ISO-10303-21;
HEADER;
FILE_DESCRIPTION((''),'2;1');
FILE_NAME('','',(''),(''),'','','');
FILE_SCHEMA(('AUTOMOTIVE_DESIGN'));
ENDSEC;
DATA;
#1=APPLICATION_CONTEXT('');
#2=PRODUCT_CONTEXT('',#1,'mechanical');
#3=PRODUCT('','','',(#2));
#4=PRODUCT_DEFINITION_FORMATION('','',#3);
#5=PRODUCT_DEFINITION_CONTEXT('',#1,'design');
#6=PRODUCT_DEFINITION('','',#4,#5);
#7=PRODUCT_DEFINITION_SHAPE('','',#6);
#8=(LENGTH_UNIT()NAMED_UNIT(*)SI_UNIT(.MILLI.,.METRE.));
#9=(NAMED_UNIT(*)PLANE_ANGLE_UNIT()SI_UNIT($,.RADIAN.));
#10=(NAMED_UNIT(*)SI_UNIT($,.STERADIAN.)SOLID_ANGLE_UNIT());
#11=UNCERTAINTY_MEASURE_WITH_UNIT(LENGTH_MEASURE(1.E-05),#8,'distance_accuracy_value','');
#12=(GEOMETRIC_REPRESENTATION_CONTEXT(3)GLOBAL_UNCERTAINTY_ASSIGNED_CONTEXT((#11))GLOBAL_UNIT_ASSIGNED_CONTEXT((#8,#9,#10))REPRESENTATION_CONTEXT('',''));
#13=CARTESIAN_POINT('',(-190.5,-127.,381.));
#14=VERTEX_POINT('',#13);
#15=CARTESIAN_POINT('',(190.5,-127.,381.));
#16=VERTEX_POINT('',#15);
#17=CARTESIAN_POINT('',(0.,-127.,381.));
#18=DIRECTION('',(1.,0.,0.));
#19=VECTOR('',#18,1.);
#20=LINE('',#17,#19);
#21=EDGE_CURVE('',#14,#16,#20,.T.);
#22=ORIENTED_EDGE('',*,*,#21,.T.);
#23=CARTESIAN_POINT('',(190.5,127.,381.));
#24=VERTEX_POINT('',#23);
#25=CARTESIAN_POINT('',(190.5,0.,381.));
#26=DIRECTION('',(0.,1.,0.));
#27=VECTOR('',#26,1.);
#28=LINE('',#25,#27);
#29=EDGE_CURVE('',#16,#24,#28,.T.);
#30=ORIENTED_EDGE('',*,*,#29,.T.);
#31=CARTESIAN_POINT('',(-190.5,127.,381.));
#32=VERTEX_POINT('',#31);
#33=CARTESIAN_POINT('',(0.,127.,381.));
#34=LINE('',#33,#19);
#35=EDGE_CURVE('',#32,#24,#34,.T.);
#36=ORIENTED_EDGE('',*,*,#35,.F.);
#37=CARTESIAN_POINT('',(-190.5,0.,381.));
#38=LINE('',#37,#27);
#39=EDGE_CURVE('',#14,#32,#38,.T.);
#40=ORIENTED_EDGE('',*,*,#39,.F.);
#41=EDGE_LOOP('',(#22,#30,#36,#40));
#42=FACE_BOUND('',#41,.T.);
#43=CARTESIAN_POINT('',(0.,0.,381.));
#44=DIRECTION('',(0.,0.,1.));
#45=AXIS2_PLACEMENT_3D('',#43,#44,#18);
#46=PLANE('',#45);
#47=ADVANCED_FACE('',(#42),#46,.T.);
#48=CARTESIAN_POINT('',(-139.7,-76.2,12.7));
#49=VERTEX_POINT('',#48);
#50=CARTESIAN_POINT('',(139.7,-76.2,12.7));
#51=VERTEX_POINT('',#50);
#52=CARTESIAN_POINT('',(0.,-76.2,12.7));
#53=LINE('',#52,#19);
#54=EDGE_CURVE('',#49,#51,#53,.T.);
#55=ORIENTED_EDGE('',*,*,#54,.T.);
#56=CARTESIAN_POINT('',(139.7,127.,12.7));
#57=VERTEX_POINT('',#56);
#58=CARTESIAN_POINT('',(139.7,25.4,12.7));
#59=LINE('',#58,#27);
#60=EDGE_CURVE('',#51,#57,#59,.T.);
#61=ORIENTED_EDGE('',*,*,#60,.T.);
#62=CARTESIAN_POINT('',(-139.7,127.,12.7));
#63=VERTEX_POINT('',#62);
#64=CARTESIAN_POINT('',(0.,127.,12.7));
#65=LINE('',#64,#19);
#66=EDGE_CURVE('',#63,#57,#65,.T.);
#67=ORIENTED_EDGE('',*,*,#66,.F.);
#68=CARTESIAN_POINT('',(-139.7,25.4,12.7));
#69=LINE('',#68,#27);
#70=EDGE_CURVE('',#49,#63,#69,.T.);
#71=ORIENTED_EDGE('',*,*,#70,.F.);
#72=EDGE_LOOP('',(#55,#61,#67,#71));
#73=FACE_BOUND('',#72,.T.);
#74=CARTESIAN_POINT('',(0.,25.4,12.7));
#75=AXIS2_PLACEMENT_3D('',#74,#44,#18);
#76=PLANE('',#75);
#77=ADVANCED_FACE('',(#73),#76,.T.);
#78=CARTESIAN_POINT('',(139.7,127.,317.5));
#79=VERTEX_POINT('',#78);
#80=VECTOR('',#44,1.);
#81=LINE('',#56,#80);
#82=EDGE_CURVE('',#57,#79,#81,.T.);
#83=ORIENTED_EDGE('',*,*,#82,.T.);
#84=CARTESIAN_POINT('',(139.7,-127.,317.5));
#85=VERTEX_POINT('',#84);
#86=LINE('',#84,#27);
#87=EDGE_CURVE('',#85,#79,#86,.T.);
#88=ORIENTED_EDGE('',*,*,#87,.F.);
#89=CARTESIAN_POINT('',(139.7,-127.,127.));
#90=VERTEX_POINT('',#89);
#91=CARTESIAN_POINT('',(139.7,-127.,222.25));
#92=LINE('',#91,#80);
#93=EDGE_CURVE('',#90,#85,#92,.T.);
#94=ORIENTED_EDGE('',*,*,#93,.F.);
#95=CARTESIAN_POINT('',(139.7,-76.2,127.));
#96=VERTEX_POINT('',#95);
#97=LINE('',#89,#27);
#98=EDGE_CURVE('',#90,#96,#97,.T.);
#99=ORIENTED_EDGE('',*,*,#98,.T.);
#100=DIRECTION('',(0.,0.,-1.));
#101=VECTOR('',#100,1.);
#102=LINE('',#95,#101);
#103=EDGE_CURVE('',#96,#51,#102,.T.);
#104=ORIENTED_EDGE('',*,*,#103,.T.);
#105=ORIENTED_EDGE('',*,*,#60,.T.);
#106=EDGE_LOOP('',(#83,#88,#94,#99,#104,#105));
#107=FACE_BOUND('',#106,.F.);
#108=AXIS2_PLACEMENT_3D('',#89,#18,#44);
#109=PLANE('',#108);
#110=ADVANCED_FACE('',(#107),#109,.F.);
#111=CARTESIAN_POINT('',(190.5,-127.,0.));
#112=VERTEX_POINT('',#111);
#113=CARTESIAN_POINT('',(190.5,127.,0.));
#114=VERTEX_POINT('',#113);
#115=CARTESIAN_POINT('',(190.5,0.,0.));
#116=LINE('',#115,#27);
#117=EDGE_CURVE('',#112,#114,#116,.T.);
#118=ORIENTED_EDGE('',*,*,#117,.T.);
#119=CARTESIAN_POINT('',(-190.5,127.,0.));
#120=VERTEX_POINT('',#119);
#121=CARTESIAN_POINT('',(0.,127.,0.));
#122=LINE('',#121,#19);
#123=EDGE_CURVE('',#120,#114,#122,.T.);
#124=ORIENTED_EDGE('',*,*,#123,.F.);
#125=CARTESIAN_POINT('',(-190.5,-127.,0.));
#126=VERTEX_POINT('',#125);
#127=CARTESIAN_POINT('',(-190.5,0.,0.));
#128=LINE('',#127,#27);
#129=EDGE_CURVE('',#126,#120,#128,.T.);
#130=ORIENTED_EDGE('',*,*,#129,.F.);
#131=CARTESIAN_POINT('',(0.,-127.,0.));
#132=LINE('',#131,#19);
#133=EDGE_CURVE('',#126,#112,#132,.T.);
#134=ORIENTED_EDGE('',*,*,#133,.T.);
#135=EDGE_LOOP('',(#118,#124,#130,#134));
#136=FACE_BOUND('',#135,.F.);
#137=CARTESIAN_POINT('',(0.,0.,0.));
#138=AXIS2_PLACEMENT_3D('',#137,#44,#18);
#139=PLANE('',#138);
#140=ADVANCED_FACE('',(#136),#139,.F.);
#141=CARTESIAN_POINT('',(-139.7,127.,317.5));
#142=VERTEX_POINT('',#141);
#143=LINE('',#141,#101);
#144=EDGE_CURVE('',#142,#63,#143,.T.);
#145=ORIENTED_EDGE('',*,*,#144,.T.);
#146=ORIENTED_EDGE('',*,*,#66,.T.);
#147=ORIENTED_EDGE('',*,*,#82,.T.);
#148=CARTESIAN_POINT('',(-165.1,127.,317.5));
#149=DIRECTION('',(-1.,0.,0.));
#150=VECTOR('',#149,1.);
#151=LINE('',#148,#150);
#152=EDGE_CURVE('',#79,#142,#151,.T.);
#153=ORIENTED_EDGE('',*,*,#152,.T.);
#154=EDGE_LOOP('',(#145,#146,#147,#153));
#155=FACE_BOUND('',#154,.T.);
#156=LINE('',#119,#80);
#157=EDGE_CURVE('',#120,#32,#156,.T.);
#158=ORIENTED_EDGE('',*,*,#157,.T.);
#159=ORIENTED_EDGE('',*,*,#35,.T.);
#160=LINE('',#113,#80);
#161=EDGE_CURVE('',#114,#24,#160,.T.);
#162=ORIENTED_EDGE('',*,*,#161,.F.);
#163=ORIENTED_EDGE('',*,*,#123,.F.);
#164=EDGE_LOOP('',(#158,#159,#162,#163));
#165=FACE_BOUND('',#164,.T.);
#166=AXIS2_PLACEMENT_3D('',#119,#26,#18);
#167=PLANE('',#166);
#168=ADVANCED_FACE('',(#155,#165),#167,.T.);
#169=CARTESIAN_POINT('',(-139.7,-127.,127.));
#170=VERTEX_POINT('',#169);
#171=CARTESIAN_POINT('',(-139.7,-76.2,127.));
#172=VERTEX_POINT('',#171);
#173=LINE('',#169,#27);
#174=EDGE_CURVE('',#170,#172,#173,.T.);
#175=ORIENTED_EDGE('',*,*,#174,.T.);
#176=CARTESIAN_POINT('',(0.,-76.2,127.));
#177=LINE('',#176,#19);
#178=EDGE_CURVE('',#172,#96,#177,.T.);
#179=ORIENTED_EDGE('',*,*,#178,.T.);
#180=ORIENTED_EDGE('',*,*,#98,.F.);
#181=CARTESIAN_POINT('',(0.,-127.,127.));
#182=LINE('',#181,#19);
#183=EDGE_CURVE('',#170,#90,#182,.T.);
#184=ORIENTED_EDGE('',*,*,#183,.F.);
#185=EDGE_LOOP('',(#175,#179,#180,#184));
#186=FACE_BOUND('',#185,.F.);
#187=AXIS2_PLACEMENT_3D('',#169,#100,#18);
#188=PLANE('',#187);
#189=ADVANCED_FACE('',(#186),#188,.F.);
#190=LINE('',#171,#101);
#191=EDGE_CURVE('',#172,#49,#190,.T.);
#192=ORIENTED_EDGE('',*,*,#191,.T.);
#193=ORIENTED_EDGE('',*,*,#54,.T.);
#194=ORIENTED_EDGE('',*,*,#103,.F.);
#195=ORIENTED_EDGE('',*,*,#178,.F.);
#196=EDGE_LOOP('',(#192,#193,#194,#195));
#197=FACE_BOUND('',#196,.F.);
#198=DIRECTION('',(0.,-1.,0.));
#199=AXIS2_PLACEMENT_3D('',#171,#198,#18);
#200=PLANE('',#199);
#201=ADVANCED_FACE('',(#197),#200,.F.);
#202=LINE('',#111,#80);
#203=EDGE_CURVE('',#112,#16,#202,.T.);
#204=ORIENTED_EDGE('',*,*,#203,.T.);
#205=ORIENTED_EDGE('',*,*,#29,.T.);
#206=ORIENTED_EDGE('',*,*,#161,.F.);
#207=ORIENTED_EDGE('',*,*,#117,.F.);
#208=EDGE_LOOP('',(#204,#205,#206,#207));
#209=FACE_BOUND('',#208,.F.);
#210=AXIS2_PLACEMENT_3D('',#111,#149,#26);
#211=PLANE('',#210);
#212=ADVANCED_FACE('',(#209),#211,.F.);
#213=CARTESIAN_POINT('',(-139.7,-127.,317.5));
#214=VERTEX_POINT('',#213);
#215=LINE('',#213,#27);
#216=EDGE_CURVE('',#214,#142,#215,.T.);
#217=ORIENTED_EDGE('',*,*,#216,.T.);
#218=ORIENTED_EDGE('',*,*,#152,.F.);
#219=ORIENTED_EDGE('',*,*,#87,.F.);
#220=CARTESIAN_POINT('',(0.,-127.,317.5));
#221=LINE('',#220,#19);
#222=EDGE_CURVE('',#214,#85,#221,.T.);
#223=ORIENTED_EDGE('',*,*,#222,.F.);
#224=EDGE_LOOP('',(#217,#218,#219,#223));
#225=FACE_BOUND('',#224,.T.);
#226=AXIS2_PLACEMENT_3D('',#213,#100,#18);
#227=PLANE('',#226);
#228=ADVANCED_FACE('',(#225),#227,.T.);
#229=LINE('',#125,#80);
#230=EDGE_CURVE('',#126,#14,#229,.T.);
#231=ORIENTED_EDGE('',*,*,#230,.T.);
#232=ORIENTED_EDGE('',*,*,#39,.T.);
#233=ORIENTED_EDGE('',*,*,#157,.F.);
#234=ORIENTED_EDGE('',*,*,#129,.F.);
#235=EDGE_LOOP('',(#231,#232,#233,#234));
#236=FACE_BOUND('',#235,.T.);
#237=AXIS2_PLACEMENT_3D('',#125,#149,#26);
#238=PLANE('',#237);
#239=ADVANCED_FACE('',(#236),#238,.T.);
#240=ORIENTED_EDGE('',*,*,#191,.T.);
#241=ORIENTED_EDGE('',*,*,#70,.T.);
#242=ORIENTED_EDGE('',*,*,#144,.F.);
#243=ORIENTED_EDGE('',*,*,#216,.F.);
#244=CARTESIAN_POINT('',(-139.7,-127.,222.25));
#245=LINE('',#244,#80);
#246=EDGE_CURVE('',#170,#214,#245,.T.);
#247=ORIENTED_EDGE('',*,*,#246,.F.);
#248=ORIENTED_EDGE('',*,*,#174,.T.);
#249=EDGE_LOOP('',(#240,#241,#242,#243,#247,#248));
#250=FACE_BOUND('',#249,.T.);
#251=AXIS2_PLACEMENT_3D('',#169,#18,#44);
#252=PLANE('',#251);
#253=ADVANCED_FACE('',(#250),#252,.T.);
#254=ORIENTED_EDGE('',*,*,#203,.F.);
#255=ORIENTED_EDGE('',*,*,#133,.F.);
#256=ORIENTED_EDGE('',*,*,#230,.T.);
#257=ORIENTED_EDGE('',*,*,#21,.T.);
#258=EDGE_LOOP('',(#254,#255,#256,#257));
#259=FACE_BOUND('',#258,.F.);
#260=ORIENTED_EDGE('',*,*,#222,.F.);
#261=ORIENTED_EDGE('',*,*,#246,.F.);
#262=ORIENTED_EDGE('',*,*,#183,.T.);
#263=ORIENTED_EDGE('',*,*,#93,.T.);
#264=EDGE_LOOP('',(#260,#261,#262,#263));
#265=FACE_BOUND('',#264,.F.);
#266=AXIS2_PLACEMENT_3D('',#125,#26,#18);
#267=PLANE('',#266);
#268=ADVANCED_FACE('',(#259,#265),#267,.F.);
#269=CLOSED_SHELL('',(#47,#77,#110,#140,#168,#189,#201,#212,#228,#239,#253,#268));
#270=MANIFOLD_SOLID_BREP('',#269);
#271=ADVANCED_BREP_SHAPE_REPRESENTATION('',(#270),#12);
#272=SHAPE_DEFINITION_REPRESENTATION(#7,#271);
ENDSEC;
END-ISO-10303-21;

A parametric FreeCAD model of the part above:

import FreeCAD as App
import Part
import Sketcher
Q = App.Units.Quantity


def add_polygon(sketch, points):
    """Adds a closed chain of lines whose ends are joined by coincident constraints."""
    first, n = sketch.GeometryCount, len(points)
    for a, b in zip(points, points[1:] + points[:1]):
        sketch.addGeometry(Part.LineSegment(App.Vector(*a, 0), App.Vector(*b, 0)), False)
    for i in range(n):
        sketch.addConstraint(Sketcher.Constraint("Coincident", first + i, 2, first + (i + 1) % n, 1))

doc = App.newDocument("Part")
body = doc.addObject("PartDesign::Body", "Body")

sketch1 = doc.addObject("Sketcher::SketchObject", "Sketch")
body.addObject(sketch1)
sketch1.AttachmentSupport = (doc.XY_Plane, [""])
sketch1.MapMode = "FlatFace"
add_polygon(sketch1, [(-190, 127), (-190, -127), (190, -127), (190, 127)])
sketch1.addConstraint([
    Sketcher.Constraint("Vertical", 0),
    Sketcher.Constraint("Horizontal", 1),
    Sketcher.Constraint("Vertical", 2),
    Sketcher.Constraint("Horizontal", 3),
    Sketcher.Constraint("Symmetric", 0, 2, 2, 2, -1, 1),
    Sketcher.Constraint("DistanceX", 1, 1, 1, 2, Q("15 in")),
    Sketcher.Constraint("DistanceY", 0, 2, 0, 1, Q("10 in")),
])
pad1 = doc.addObject("PartDesign::Pad", "Pad")
body.addObject(pad1)
pad1.Profile = sketch1
pad1.Length = Q("15 in")

sketch2 = doc.addObject("Sketcher::SketchObject", "Sketch001")
body.addObject(sketch2)
sketch2.AttachmentSupport = (doc.XZ_Plane, [""])
sketch2.MapMode = "FlatFace"
sketch2.AttachmentOffset = App.Placement(App.Vector(0, 0, 5 * 25.4), App.Rotation())
add_polygon(sketch2, [(-140, 318), (-140, 127), (140, 127), (140, 318)])
sketch2.addConstraint([
    Sketcher.Constraint("Vertical", 0),
    Sketcher.Constraint("Horizontal", 1),
    Sketcher.Constraint("Vertical", 2),
    Sketcher.Constraint("Horizontal", 3),
    Sketcher.Constraint("DistanceX", 1, 1, 1, 2, Q("11 in")),
    Sketcher.Constraint("DistanceY", 0, 2, 0, 1, Q("7.5 in")),
    Sketcher.Constraint("DistanceY", -1, 1, 0, 2, Q("5 in")),
    Sketcher.Constraint("DistanceX", 0, 2, -1, 1, Q("5.5 in")),
])
pocket1 = doc.addObject("PartDesign::Pocket", "Pocket")
body.addObject(pocket1)
pocket1.Profile = sketch2
pocket1.Type = "ThroughAll"

sketch3 = doc.addObject("Sketcher::SketchObject", "Sketch002")
body.addObject(sketch3)
sketch3.AttachmentSupport = (doc.XY_Plane, [""])
sketch3.MapMode = "FlatFace"
sketch3.AttachmentOffset = App.Placement(App.Vector(0, 0, 5 * 25.4), App.Rotation())
add_polygon(sketch3, [(-140, 127), (-140, -76), (140, -76), (140, 127)])
sketch3.addConstraint([
    Sketcher.Constraint("Vertical", 0),
    Sketcher.Constraint("Horizontal", 1),
    Sketcher.Constraint("Vertical", 2),
    Sketcher.Constraint("Horizontal", 3),
    Sketcher.Constraint("DistanceX", 1, 1, 1, 2, Q("11 in")),
    Sketcher.Constraint("DistanceY", 0, 2, 0, 1, Q("8 in")),
    Sketcher.Constraint("DistanceY", 0, 2, -1, 1, Q("3 in")),
    Sketcher.Constraint("DistanceX", 0, 2, -1, 1, Q("5.5 in")),
])
pocket2 = doc.addObject("PartDesign::Pocket", "Pocket001")
body.addObject(pocket2)
pocket2.Profile = sketch3
pocket2.Length = Q("4.5 in")

doc.recompute()
